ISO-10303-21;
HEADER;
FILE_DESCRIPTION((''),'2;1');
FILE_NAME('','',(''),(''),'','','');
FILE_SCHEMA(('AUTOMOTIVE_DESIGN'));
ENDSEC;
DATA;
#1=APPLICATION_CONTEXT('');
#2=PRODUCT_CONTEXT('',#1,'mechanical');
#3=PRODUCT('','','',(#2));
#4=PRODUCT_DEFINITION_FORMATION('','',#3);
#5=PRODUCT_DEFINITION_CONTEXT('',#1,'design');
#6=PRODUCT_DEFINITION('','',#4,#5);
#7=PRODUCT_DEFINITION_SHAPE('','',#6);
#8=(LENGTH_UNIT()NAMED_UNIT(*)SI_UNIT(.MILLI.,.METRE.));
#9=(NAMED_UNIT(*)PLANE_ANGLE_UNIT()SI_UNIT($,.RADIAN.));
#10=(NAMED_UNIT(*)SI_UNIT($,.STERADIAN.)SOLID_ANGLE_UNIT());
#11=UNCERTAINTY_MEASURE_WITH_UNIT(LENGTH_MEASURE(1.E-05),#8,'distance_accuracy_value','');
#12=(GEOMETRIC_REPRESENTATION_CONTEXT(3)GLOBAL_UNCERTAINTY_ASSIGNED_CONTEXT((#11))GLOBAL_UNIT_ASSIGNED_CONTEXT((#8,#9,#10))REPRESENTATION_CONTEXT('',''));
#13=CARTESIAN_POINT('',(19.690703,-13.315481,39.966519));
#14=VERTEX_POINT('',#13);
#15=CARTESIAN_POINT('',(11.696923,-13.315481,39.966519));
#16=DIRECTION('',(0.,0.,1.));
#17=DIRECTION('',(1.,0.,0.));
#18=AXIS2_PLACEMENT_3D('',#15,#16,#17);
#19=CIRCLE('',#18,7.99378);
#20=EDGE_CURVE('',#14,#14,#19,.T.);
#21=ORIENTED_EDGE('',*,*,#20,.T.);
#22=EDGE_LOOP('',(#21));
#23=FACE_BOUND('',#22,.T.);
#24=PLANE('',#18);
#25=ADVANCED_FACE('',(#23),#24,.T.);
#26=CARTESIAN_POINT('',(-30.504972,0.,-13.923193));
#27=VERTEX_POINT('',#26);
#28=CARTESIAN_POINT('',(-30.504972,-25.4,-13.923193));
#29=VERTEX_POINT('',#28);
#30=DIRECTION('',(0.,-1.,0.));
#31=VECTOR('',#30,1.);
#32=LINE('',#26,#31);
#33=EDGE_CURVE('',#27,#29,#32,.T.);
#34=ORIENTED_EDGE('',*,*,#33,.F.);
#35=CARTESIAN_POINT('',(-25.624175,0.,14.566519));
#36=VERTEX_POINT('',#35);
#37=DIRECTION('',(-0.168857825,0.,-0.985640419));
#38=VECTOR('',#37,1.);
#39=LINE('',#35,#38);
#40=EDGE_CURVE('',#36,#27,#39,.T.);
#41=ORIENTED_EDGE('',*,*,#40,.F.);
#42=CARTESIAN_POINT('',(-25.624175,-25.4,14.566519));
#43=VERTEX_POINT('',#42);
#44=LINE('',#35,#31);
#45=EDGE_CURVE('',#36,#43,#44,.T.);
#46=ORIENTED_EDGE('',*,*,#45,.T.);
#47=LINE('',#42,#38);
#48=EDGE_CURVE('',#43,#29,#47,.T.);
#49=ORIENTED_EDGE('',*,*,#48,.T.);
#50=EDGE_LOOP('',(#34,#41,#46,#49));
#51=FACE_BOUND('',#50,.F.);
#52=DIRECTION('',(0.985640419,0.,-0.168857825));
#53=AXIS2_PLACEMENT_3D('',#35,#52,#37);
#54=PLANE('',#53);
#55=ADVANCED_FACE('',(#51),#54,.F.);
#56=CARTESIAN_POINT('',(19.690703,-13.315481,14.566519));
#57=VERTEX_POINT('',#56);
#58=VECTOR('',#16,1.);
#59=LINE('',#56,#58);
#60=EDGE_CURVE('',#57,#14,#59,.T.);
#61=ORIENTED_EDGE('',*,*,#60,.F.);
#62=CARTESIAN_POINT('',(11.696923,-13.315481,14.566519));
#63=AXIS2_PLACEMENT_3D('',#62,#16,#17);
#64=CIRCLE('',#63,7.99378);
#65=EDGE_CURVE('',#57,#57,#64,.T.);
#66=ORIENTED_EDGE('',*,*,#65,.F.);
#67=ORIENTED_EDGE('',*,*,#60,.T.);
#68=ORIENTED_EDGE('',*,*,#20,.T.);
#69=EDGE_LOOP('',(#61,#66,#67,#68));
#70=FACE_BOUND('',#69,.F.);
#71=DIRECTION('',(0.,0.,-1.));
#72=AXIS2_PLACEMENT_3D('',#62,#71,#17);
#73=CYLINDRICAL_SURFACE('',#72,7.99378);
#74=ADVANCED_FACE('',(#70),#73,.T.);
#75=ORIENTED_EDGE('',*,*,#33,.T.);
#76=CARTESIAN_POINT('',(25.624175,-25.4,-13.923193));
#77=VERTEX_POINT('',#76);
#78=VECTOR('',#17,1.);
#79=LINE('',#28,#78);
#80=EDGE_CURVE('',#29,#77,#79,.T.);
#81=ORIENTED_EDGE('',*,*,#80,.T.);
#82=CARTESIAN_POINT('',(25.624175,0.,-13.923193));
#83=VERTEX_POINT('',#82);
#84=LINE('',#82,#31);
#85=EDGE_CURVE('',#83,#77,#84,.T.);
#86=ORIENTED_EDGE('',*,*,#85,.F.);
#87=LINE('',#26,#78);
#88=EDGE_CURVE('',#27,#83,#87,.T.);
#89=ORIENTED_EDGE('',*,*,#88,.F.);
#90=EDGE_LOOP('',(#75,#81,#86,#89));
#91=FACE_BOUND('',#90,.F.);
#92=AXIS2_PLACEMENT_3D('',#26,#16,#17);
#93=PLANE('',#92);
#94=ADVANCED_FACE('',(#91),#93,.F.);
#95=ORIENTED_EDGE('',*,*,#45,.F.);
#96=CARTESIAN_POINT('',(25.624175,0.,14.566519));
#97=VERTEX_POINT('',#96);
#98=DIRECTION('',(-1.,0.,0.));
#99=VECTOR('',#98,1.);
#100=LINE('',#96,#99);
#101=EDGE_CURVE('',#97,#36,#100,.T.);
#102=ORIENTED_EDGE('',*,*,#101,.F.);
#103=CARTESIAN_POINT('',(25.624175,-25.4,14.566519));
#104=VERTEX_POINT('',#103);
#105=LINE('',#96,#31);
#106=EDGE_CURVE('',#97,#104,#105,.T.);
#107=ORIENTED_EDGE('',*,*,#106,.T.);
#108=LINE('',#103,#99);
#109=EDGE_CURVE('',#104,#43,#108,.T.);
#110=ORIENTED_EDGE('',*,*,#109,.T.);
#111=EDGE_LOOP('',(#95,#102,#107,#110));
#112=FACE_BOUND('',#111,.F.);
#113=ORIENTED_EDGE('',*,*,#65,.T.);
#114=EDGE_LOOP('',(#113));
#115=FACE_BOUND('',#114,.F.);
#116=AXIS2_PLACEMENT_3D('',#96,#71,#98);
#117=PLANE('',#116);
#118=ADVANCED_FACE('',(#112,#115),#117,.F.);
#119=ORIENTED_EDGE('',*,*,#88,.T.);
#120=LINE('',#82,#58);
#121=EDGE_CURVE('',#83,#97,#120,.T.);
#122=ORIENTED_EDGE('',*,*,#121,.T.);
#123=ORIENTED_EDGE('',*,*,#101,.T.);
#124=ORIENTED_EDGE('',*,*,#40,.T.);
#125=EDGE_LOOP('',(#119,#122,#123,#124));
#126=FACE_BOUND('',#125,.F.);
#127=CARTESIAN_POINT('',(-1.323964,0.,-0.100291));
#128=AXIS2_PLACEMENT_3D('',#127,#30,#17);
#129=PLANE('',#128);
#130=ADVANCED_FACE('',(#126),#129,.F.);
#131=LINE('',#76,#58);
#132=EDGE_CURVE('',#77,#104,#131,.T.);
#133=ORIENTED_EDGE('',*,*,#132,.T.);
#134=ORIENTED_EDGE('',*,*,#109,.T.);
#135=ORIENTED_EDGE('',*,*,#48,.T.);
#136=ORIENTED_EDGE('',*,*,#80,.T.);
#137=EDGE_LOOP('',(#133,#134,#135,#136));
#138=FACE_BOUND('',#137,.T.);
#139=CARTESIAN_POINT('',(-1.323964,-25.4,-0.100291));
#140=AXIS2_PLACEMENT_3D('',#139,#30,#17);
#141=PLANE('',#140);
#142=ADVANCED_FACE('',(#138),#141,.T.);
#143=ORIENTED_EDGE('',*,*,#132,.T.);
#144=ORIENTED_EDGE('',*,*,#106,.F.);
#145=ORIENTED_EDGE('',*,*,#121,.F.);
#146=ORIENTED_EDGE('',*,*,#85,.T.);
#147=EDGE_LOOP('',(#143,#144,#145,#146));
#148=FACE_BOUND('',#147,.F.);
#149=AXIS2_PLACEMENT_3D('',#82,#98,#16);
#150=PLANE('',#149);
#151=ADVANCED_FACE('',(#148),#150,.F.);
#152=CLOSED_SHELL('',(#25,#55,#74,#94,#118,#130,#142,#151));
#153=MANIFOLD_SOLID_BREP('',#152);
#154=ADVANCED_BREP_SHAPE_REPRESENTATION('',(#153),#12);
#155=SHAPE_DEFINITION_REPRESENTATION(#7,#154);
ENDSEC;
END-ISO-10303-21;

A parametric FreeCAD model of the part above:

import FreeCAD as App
import Part
import Sketcher
from FreeCAD import Vector
Q = App.Units.Quantity


def add_polygon(sketch, points):
    """Adds a closed chain of lines whose ends are joined by coincident constraints."""
    first, n = sketch.GeometryCount, len(points)
    for a, b in zip(points, points[1:] + points[:1]):
        sketch.addGeometry(Part.LineSegment(App.Vector(*a, 0), App.Vector(*b, 0)), False)
    for i in range(n):
        sketch.addConstraint(Sketcher.Constraint("Coincident", first + i, 2, first + (i + 1) % n, 1))

doc = App.newDocument("Part")
params = doc.addObject("Spreadsheet::Sheet", "Params")
for row, (alias, value) in enumerate([
    ("pad1_length", "1 in"),
    ("pad2_length", "1 in"),
], start=1):
    params.set(f"A{row}", alias)
    params.set(f"B{row}", "=" + value)
    params.setAlias(f"B{row}", alias)

body = doc.addObject("PartDesign::Body", "Body")

sketch1 = body.newObject("Sketcher::SketchObject", "Sketch")
sketch1.AttachmentSupport = (doc.getObject("XZ_Plane"), [""])
sketch1.MapMode = "FlatFace"
add_polygon(sketch1, [(25.624175, 14.566519), (-25.624175, 14.566519), (-30.504972, -13.923193), (25.624175, -13.923193)])
sketch1.addConstraint([
    Sketcher.Constraint("Horizontal", 0),
    Sketcher.Constraint("Horizontal", 2),
    Sketcher.Constraint("Vertical", 3),
    Sketcher.Constraint("DistanceX", 0, 2, 0, 1, Q("51.24835 mm")),
    Sketcher.Constraint("DistanceY", 3, 1, 3, 2, Q("28.489712 mm")),
    Sketcher.Constraint("DistanceX", 2, 1, 2, 2, Q("56.129147 mm")),
    Sketcher.Constraint("DistanceY", -1, 1, 0, 2, Q("14.566519 mm")),
    Sketcher.Constraint("DistanceX", 1, 2, -1, 1, Q("30.504972 mm")),
])
pad1 = body.newObject("PartDesign::Pad", "Pad")
pad1.Profile = sketch1
pad1.setExpression("Length", "Params.pad1_length")

sketch2 = body.newObject("Sketcher::SketchObject", "Sketch001")
sketch2.AttachmentSupport = (doc.getObject("XY_Plane"), [""])
sketch2.MapMode = "FlatFace"
sketch2.AttachmentOffset = App.Placement(Vector(0, 0, 14.566519), App.Rotation())
sketch2.addGeometry(Part.Circle(Vector(11.696923, -13.315481, 0), Vector(0, 0, 1), 7.99378), False)
sketch2.addConstraint([
    Sketcher.Constraint("Diameter", 0, Q("15.98756 mm")),
    Sketcher.Constraint("DistanceY", 0, 3, -1, 1, Q("13.315481 mm")),
    Sketcher.Constraint("DistanceX", -1, 1, 0, 3, Q("11.696923 mm")),
])
pad2 = body.newObject("PartDesign::Pad", "Pad001")
pad2.Profile = sketch2
pad2.setExpression("Length", "Params.pad2_length")

doc.recompute()
